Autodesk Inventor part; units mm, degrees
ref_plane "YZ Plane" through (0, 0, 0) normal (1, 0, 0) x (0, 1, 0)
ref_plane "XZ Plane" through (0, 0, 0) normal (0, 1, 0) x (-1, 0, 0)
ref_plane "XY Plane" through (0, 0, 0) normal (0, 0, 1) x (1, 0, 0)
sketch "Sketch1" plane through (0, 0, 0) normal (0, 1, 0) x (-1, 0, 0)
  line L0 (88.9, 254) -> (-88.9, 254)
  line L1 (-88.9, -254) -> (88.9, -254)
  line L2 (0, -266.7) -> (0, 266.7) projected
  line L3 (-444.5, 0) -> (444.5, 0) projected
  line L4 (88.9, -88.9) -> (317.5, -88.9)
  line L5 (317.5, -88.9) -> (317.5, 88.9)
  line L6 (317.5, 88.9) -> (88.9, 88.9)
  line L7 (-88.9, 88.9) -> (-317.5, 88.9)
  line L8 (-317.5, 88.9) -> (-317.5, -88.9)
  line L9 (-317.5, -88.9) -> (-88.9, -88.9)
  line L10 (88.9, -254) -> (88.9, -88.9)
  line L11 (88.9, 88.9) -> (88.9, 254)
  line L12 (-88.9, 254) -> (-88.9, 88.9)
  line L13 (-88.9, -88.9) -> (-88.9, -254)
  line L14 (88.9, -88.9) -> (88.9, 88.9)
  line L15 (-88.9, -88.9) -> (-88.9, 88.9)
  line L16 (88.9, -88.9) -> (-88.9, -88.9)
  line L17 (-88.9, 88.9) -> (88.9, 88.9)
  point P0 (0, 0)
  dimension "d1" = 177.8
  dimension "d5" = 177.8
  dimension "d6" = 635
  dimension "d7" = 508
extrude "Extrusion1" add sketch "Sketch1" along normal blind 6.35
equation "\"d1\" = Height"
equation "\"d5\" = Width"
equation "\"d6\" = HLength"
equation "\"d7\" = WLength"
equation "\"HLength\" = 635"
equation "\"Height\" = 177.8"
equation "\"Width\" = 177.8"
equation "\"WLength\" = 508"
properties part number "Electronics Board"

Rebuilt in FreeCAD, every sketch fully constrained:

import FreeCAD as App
import Part
import Sketcher

V = App.Vector
Q = App.Units.Quantity

doc = App.newDocument("Part")
body = doc.addObject("PartDesign::Body", "Body")

sketch1 = doc.addObject("Sketcher::SketchObject", "Sketch")
body.addObject(sketch1)
sketch1.AttachmentSupport = (doc.XZ_Plane, [""])
sketch1.MapMode = "FlatFace"
sketch1.addGeometry(Part.LineSegment(V(-88.9, 88.9, 0), V(-88.9, 254, 0)), False)
sketch1.addGeometry(Part.LineSegment(V(-88.9, 254, 0), V(88.9, 254, 0)), False)
sketch1.addGeometry(Part.LineSegment(V(88.9, 254, 0), V(88.9, 88.9, 0)), False)
sketch1.addGeometry(Part.LineSegment(V(88.9, 88.9, 0), V(317.5, 88.9, 0)), False)
sketch1.addGeometry(Part.LineSegment(V(317.5, 88.9, 0), V(317.5, -88.9, 0)), False)
sketch1.addGeometry(Part.LineSegment(V(317.5, -88.9, 0), V(88.9, -88.9, 0)), False)
sketch1.addGeometry(Part.LineSegment(V(88.9, -88.9, 0), V(88.9, -254, 0)), False)
sketch1.addGeometry(Part.LineSegment(V(88.9, -254, 0), V(-88.9, -254, 0)), False)
sketch1.addGeometry(Part.LineSegment(V(-88.9, -254, 0), V(-88.9, -88.9, 0)), False)
sketch1.addGeometry(Part.LineSegment(V(-88.9, -88.9, 0), V(-317.5, -88.9, 0)), False)
sketch1.addGeometry(Part.LineSegment(V(-317.5, -88.9, 0), V(-317.5, 88.9, 0)), False)
sketch1.addGeometry(Part.LineSegment(V(-317.5, 88.9, 0), V(-88.9, 88.9, 0)), False)
sketch1.addConstraint(Sketcher.Constraint("Coincident", 0, 2, 1, 1))
sketch1.addConstraint(Sketcher.Constraint("Coincident", 1, 2, 2, 1))
sketch1.addConstraint(Sketcher.Constraint("Coincident", 2, 2, 3, 1))
sketch1.addConstraint(Sketcher.Constraint("Coincident", 3, 2, 4, 1))
sketch1.addConstraint(Sketcher.Constraint("Coincident", 4, 2, 5, 1))
sketch1.addConstraint(Sketcher.Constraint("Coincident", 5, 2, 6, 1))
sketch1.addConstraint(Sketcher.Constraint("Coincident", 6, 2, 7, 1))
sketch1.addConstraint(Sketcher.Constraint("Coincident", 7, 2, 8, 1))
sketch1.addConstraint(Sketcher.Constraint("Coincident", 8, 2, 9, 1))
sketch1.addConstraint(Sketcher.Constraint("Coincident", 9, 2, 10, 1))
sketch1.addConstraint(Sketcher.Constraint("Coincident", 10, 2, 11, 1))
sketch1.addConstraint(Sketcher.Constraint("Coincident", 11, 2, 0, 1))
sketch1.addConstraint(Sketcher.Constraint("Vertical", 0))
sketch1.addConstraint(Sketcher.Constraint("Horizontal", 1))
sketch1.addConstraint(Sketcher.Constraint("Vertical", 2))
sketch1.addConstraint(Sketcher.Constraint("Horizontal", 3))
sketch1.addConstraint(Sketcher.Constraint("Vertical", 4))
sketch1.addConstraint(Sketcher.Constraint("Horizontal", 5))
sketch1.addConstraint(Sketcher.Constraint("Vertical", 6))
sketch1.addConstraint(Sketcher.Constraint("Horizontal", 7))
sketch1.addConstraint(Sketcher.Constraint("Vertical", 8))
sketch1.addConstraint(Sketcher.Constraint("Horizontal", 9))
sketch1.addConstraint(Sketcher.Constraint("Vertical", 10))
sketch1.addConstraint(Sketcher.Constraint("Horizontal", 11))
sketch1.addConstraint(Sketcher.Constraint("Symmetric", 0, 2, 6, 2, -1, 1))
sketch1.addConstraint(Sketcher.Constraint("Symmetric", 2, 2, 8, 2, -1, 1))
sketch1.addConstraint(Sketcher.Constraint("Symmetric", 4, 2, 10, 2, -1, 1))
sketch1.addConstraint(Sketcher.Constraint("Symmetric", 5, 2, 8, 2, -2))
sketch1.addConstraint(Sketcher.Constraint("Equal", 7, 4))
sketch1.addConstraint(Sketcher.Constraint("DistanceX", 1, 1, 1, 2, Q("7 in")))
sketch1.addConstraint(Sketcher.Constraint("DistanceY", 6, 2, 1, 2, Q("20 in")))
sketch1.addConstraint(Sketcher.Constraint("DistanceX", 3, 1, 3, 2, Q("9 in")))
pad1 = doc.addObject("PartDesign::Pad", "Pad")
body.addObject(pad1)
pad1.Profile = sketch1
pad1.Length = Q("0.25 in")
pad1.Reversed = True

doc.recompute()
